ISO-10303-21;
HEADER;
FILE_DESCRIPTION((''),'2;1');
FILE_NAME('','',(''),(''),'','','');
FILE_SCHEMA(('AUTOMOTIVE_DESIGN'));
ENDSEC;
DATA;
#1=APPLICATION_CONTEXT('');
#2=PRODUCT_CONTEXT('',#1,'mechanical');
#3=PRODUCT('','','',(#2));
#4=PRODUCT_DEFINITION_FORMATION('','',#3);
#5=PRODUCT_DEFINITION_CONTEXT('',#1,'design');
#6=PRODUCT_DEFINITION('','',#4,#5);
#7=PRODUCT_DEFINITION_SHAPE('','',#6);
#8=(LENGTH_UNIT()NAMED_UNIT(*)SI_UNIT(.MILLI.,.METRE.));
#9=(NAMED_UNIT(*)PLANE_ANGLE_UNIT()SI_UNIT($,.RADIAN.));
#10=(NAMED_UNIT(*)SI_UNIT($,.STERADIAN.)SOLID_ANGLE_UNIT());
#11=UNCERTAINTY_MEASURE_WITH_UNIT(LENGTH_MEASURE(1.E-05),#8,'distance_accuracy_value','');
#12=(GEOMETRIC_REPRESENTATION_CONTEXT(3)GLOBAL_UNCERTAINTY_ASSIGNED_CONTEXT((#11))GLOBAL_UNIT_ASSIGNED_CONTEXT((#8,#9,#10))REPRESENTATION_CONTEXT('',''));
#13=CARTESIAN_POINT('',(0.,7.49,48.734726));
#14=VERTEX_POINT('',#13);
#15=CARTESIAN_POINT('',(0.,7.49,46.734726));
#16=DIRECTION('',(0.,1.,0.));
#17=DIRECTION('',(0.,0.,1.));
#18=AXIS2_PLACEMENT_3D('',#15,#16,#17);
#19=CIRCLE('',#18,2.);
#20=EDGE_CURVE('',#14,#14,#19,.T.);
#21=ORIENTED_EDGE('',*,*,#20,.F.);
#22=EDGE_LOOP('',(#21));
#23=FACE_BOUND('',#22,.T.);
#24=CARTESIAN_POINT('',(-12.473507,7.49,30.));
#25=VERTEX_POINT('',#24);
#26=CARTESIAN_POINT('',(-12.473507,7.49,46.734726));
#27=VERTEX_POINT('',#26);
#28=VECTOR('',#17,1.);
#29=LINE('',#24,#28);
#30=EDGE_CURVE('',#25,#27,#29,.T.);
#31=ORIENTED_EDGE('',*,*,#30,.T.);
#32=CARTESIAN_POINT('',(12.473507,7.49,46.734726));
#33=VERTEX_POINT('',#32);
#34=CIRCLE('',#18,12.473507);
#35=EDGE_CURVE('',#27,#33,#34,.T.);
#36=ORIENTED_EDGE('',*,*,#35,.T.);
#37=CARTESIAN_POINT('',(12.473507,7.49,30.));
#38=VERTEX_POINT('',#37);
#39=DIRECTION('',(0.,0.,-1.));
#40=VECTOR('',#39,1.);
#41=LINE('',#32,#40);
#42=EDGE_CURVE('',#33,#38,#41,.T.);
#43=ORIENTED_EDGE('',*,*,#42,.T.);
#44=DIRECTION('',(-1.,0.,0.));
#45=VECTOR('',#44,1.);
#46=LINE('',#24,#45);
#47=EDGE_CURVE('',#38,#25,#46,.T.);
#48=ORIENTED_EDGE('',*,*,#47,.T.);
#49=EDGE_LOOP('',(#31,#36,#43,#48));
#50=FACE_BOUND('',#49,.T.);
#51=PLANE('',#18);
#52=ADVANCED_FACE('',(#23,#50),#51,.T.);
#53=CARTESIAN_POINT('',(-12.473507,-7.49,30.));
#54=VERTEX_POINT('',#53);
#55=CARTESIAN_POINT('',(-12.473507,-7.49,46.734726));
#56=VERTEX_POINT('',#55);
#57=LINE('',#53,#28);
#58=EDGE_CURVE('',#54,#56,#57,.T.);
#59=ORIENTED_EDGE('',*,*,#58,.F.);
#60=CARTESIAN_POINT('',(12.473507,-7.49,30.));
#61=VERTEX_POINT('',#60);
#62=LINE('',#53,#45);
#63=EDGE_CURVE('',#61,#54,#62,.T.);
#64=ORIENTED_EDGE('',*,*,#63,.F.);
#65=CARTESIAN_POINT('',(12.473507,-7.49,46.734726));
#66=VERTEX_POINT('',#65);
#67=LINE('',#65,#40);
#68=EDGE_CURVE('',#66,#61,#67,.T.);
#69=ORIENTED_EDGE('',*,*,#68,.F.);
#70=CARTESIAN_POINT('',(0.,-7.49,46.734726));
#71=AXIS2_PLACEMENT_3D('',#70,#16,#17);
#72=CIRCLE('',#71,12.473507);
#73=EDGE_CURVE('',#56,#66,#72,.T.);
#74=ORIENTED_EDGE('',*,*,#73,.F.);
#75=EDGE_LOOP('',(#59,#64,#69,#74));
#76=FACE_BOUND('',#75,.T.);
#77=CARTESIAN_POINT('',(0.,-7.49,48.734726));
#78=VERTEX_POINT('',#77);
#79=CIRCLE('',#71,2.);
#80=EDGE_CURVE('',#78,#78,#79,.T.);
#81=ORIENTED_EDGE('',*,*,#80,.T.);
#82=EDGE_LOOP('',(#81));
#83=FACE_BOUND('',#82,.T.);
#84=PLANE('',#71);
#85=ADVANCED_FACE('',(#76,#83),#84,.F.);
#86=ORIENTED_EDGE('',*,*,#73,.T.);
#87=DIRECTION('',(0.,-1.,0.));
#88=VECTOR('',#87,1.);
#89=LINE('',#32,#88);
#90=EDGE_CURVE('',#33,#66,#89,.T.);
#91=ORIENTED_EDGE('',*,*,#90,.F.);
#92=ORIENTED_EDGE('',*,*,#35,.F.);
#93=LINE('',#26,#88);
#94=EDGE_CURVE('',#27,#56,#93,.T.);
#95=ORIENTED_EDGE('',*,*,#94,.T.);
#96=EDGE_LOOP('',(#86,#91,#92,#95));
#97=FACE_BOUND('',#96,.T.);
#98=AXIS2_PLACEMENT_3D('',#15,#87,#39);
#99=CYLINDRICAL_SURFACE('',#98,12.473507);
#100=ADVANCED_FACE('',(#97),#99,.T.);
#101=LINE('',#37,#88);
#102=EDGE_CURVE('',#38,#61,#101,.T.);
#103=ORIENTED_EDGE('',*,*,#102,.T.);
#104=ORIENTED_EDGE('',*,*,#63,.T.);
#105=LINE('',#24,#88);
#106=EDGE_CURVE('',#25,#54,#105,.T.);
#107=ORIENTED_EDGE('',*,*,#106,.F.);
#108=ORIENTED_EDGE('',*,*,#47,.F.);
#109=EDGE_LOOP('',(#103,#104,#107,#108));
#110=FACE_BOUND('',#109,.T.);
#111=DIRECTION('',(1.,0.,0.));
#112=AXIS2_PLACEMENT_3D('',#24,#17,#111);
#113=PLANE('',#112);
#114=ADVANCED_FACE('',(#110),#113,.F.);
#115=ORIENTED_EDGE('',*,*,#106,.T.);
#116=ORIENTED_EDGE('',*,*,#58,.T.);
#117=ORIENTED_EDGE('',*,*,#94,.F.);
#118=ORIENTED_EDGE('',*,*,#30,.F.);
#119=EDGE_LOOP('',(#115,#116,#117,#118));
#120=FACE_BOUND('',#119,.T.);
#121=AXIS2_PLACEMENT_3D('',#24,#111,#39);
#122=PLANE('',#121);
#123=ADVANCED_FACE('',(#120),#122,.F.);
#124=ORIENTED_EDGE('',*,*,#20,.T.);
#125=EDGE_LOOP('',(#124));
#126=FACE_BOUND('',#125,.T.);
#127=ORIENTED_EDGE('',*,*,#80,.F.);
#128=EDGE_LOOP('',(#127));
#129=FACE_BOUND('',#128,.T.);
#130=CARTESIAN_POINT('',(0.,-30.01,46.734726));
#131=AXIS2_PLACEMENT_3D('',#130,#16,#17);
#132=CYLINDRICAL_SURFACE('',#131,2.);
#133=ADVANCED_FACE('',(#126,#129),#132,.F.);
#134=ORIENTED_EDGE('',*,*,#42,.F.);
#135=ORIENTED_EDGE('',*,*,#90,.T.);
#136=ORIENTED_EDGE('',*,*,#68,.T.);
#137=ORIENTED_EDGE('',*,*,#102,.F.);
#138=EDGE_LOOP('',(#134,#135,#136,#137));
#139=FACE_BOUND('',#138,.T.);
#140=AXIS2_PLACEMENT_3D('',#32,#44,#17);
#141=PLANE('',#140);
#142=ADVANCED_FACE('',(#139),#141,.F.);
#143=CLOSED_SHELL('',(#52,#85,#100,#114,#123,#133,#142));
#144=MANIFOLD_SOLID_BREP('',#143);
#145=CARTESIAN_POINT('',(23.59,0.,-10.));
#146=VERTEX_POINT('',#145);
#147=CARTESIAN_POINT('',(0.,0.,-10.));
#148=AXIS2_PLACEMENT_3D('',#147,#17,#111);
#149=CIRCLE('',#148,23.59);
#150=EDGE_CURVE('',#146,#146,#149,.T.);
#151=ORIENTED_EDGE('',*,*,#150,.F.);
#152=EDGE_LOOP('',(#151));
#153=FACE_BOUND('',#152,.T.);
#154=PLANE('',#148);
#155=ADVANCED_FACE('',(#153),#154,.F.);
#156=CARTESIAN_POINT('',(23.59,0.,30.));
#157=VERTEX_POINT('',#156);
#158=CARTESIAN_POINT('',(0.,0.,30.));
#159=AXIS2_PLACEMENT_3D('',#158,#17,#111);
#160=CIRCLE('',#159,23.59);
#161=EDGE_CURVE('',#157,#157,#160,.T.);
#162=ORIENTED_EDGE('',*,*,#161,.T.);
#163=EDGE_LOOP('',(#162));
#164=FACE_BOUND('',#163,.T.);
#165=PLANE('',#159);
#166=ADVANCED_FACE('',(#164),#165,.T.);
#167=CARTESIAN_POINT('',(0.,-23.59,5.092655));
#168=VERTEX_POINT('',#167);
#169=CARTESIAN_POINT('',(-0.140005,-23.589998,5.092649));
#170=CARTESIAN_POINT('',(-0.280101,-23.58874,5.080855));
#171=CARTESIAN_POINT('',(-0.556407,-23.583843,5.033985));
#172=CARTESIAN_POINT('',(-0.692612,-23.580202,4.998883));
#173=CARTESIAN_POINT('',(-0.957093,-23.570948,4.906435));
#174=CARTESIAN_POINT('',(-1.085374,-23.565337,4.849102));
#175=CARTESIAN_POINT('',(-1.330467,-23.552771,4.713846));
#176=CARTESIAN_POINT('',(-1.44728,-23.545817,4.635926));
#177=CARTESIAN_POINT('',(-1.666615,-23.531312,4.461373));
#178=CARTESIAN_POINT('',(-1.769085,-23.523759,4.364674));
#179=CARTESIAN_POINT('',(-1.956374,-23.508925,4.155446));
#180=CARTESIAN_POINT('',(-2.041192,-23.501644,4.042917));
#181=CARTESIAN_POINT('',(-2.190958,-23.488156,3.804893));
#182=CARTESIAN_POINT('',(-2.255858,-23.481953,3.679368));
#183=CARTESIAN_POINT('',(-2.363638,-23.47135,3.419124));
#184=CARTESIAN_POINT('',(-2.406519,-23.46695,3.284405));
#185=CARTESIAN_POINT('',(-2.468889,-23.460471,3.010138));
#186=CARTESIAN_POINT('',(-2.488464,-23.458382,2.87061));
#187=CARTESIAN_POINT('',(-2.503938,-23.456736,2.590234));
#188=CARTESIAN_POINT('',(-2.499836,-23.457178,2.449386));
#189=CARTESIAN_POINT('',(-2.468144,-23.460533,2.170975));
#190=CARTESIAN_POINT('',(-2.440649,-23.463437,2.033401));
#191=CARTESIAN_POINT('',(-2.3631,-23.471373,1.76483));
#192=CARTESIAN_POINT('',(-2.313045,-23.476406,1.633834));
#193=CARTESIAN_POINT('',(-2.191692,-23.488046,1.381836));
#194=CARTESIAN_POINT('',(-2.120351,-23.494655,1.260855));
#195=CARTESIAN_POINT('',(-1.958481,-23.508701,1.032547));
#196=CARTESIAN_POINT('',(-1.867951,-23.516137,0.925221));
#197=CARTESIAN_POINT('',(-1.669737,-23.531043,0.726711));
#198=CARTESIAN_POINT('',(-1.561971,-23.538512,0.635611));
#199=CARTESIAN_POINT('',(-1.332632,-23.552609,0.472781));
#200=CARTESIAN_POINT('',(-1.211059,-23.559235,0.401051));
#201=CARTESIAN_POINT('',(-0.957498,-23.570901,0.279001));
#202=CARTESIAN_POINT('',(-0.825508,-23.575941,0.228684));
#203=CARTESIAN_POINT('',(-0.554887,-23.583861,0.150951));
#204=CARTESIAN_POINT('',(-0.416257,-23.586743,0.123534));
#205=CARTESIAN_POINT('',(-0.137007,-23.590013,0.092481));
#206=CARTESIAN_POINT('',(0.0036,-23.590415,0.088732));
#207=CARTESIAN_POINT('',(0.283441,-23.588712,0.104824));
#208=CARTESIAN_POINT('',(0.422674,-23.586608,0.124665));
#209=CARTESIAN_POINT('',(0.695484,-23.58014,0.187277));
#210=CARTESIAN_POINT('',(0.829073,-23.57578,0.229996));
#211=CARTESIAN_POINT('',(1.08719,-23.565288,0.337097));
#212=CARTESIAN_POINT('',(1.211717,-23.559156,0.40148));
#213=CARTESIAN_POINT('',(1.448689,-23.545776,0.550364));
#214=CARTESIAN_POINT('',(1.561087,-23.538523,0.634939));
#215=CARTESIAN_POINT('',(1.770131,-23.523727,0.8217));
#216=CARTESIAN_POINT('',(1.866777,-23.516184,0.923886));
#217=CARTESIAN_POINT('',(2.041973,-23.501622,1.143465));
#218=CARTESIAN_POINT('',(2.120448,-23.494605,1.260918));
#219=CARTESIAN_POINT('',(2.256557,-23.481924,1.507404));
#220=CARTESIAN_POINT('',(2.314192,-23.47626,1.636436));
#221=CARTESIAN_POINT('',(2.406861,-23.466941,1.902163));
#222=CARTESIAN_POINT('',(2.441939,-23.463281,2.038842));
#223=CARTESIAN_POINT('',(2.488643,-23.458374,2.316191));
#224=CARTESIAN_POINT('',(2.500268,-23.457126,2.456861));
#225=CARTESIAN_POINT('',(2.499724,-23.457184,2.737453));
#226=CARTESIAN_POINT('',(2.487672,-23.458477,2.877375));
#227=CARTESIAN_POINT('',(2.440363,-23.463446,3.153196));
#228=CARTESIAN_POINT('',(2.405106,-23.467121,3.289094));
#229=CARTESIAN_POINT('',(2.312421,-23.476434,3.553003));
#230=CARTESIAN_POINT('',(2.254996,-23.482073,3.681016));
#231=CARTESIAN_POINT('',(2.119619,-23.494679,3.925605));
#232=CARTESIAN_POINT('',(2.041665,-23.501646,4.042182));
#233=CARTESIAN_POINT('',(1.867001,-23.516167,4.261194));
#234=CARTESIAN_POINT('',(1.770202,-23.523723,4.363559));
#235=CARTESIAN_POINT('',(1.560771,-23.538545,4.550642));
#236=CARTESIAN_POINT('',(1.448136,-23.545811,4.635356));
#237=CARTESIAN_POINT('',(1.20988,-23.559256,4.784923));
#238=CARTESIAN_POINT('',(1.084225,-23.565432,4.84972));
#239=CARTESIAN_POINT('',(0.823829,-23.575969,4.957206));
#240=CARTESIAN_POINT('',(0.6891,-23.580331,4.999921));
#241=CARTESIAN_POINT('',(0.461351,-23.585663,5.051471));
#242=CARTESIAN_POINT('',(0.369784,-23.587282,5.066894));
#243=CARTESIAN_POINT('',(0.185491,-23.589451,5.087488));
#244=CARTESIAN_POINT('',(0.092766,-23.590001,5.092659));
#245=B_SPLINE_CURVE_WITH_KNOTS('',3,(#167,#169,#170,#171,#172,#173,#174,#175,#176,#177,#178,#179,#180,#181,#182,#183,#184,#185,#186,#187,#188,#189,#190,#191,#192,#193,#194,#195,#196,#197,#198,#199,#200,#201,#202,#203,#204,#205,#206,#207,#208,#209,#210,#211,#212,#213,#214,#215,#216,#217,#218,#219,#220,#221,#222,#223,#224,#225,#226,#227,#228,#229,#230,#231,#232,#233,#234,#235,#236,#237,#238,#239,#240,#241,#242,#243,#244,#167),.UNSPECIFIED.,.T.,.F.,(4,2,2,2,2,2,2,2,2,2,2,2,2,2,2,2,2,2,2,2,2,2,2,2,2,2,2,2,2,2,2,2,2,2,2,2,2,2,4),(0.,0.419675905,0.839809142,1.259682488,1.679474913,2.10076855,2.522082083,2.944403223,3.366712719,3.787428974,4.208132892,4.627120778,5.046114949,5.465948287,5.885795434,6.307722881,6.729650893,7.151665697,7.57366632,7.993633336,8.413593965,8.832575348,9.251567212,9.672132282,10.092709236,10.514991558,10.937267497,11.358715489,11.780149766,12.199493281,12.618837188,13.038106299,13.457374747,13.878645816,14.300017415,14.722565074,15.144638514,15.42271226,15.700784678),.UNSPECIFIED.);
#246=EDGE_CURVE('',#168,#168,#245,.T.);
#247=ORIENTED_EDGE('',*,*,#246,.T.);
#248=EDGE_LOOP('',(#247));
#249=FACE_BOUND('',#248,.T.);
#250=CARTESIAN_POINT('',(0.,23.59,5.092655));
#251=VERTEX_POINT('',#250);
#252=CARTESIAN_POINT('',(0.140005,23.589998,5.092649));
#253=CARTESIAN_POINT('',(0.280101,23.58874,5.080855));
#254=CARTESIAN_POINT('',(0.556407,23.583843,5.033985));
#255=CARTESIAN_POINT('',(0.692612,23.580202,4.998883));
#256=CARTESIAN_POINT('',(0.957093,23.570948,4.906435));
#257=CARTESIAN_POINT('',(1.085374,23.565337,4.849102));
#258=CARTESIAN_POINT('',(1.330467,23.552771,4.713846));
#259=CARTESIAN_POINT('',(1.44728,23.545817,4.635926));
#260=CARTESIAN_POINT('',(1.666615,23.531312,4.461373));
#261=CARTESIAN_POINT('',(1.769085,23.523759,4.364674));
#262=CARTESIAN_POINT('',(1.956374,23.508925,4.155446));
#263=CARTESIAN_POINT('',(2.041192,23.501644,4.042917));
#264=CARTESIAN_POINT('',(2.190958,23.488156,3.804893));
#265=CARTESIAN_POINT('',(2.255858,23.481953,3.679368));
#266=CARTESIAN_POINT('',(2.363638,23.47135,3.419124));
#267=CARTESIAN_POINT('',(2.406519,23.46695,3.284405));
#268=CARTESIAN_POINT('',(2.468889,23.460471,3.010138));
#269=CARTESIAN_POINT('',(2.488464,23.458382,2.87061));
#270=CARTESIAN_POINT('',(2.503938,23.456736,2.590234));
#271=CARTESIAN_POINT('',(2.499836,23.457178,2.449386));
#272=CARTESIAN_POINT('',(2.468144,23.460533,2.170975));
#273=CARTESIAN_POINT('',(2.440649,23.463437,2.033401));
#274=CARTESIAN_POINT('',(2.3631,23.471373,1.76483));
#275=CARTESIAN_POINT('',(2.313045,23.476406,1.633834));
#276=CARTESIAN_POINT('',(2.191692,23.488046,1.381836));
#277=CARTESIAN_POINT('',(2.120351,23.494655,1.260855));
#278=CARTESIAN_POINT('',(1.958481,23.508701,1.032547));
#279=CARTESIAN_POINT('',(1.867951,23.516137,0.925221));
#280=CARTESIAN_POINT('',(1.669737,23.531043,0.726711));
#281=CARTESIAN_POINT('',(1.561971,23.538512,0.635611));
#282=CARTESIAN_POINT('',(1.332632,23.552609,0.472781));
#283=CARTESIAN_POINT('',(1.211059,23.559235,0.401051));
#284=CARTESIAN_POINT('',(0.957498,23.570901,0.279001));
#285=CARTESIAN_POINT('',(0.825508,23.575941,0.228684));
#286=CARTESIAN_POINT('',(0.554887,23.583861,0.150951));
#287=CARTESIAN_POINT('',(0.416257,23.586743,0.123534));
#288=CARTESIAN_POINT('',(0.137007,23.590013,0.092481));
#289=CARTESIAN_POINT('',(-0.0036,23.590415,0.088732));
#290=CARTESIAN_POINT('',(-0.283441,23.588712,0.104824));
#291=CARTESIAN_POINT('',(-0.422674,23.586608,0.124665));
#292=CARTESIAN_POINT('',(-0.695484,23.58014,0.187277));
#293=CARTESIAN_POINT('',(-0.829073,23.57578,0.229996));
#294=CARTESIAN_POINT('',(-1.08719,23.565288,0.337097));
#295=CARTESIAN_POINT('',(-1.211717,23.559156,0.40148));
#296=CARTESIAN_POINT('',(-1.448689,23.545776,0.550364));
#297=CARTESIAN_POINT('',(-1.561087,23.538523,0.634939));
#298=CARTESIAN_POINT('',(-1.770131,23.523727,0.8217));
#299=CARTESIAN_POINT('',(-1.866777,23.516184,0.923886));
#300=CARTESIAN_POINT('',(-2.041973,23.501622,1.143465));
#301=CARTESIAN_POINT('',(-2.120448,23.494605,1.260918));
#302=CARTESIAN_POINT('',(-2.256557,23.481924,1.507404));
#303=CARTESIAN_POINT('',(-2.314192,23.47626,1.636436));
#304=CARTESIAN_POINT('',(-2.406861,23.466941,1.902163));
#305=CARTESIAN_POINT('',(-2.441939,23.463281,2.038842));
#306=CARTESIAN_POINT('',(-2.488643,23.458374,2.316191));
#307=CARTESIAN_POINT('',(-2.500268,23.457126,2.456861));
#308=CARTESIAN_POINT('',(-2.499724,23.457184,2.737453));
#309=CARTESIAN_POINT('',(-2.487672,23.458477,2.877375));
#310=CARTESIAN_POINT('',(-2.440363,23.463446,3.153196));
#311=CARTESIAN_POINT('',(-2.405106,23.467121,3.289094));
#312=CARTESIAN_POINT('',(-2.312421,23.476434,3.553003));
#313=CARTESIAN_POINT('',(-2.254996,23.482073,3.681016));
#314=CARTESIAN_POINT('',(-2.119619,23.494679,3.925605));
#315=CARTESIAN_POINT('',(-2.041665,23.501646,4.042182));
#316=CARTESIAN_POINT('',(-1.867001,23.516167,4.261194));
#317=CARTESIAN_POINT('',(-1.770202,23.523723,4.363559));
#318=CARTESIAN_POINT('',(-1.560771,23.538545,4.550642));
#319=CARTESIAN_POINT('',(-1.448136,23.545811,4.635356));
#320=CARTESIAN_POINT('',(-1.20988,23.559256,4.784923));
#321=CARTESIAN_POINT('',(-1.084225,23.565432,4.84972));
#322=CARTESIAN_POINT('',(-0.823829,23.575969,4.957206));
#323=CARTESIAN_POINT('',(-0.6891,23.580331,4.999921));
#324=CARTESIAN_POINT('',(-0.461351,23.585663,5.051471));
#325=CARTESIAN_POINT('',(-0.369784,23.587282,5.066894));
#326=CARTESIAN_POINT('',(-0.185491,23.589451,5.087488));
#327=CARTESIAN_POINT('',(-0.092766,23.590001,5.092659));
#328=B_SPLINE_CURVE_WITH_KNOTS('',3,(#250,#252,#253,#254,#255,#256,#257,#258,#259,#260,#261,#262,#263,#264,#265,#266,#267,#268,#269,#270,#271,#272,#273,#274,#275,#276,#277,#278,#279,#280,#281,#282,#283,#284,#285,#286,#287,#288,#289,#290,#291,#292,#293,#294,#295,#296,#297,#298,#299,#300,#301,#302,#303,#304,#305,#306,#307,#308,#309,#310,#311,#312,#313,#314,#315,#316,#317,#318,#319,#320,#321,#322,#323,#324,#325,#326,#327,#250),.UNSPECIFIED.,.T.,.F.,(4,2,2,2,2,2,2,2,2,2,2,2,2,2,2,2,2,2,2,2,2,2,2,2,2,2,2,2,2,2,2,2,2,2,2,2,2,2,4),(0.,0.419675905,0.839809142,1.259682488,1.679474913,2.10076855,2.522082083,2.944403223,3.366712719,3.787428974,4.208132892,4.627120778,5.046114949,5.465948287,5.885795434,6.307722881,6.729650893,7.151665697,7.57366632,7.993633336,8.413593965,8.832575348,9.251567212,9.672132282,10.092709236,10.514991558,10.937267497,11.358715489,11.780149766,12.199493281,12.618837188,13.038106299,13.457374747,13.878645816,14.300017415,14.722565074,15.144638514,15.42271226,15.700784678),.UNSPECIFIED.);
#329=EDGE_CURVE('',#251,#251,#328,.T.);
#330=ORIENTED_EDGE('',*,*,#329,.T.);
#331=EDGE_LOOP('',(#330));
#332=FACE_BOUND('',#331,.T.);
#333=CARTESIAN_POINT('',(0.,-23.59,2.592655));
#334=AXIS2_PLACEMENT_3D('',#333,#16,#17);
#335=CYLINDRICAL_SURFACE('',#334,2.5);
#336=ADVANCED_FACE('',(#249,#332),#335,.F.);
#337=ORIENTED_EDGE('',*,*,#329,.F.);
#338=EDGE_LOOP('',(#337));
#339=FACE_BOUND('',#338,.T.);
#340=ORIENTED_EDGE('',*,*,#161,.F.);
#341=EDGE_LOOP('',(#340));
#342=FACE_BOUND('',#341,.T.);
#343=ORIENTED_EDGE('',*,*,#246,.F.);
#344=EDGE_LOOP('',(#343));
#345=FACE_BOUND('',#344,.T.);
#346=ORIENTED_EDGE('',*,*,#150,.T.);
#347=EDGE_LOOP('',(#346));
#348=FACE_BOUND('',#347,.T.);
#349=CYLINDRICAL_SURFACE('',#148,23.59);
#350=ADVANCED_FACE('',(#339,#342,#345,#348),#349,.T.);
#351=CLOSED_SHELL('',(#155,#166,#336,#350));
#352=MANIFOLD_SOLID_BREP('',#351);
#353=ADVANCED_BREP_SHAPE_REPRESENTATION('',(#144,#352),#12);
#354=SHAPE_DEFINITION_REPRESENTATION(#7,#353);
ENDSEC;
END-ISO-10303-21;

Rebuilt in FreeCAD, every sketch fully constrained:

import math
import FreeCAD as App
import Part
import Sketcher

V = App.Vector

doc = App.newDocument("Part")
body = doc.addObject("PartDesign::Body", "Body")

# Sketch on XY plane
sketch1 = doc.addObject("Sketcher::SketchObject", "Sketch")
body.addObject(sketch1)
sketch1.AttachmentSupport = (doc.XY_Plane, [""])
sketch1.MapMode = "FlatFace"
sketch1.addGeometry(Part.Circle(V(0, 0, 0), V(0, 0, 1), 24), False)
sketch1.addConstraint(Sketcher.Constraint("Coincident", 0, 3, -1, 1))
sketch1.addConstraint(Sketcher.Constraint("Diameter", 0, 47.18))
pad1 = doc.addObject("PartDesign::Pad", "Pad")
body.addObject(pad1)
pad1.Profile = sketch1
pad1.Type = "TwoLengths"
pad1.Length = 30
pad1.Length2 = 10

# Sketch on XZ plane
sketch2 = doc.addObject("Sketcher::SketchObject", "Sketch001")
body.addObject(sketch2)
sketch2.AttachmentSupport = (doc.XZ_Plane, [""])
sketch2.MapMode = "FlatFace"
sketch2.addGeometry(Part.Circle(V(0, 2.6, 0), V(0, 0, 1), 2.5), False)
sketch2.addConstraint(Sketcher.Constraint("PointOnObject", 0, 3, -2))
sketch2.addConstraint(Sketcher.Constraint("Diameter", 0, 5.0))
sketch2.addConstraint(Sketcher.Constraint("DistanceY", -1, 1, 0, 3, 2.592655))
pocket1 = doc.addObject("PartDesign::Pocket", "Pocket")
body.addObject(pocket1)
pocket1.Profile = sketch2
pocket1.Type = "ThroughAll"
pocket1.Midplane = True
body2 = doc.addObject("PartDesign::Body", "Body001")

# Sketch on XZ plane
sketch3 = doc.addObject("Sketcher::SketchObject", "Sketch002")
body2.addObject(sketch3)
sketch3.AttachmentSupport = (doc.getObject("XZ_Plane001"), [""])
sketch3.MapMode = "FlatFace"
sketch3.addGeometry(Part.LineSegment(V(12, 30, 0), V(-12, 30, 0)), False)
sketch3.addGeometry(Part.LineSegment(V(-12, 30, 0), V(-12, 47, 0)), False)
sketch3.addGeometry(Part.ArcOfCircle(Part.Circle(V(0, 47, 0), V(0, 0, 1), 12), math.radians(0), math.radians(180)), False)
sketch3.addGeometry(Part.LineSegment(V(12, 47, 0), V(12, 30, 0)), False)
sketch3.addConstraint(Sketcher.Constraint("Coincident", 0, 2, 1, 1))
sketch3.addConstraint(Sketcher.Constraint("Tangent", 1, 2, 2, 2))
sketch3.addConstraint(Sketcher.Constraint("Tangent", 2, 1, 3, 1))
sketch3.addConstraint(Sketcher.Constraint("Coincident", 3, 2, 0, 1))
sketch3.addConstraint(Sketcher.Constraint("Horizontal", 0))
sketch3.addConstraint(Sketcher.Constraint("Vertical", 1))
sketch3.addConstraint(Sketcher.Constraint("Vertical", 3))
sketch3.addConstraint(Sketcher.Constraint("PointOnObject", 2, 3, -2))
sketch3.addConstraint(Sketcher.Constraint("DistanceY", -1, 1, 0, 2, 30.0))
sketch3.addConstraint(Sketcher.Constraint("Radius", 2, 12.473507))
sketch3.addConstraint(Sketcher.Constraint("DistanceY", 1, 1, 1, 2, 16.734726))
pad2 = doc.addObject("PartDesign::Pad", "Pad001")
body2.addObject(pad2)
pad2.Profile = sketch3
pad2.Length = 14.98
pad2.Midplane = True

# Sketch on XZ plane
sketch4 = doc.addObject("Sketcher::SketchObject", "Sketch003")
body2.addObject(sketch4)
sketch4.AttachmentSupport = (doc.getObject("XZ_Plane001"), [""])
sketch4.MapMode = "FlatFace"
sketch4.AttachmentOffset = App.Placement(V(0, 0, -7.49), App.Rotation())
sketch4.addGeometry(Part.Circle(V(0, 46.7, 0), V(0, 0, 1), 2), False)
sketch4.addConstraint(Sketcher.Constraint("PointOnObject", 0, 3, -2))
sketch4.addConstraint(Sketcher.Constraint("Diameter", 0, 4.0))
sketch4.addConstraint(Sketcher.Constraint("DistanceY", -1, 1, 0, 3, 46.734726))
pocket2 = doc.addObject("PartDesign::Pocket", "Pocket001")
body2.addObject(pocket2)
pocket2.Profile = sketch4
pocket2.Length = 75
pocket2.Midplane = True

doc.recompute()
